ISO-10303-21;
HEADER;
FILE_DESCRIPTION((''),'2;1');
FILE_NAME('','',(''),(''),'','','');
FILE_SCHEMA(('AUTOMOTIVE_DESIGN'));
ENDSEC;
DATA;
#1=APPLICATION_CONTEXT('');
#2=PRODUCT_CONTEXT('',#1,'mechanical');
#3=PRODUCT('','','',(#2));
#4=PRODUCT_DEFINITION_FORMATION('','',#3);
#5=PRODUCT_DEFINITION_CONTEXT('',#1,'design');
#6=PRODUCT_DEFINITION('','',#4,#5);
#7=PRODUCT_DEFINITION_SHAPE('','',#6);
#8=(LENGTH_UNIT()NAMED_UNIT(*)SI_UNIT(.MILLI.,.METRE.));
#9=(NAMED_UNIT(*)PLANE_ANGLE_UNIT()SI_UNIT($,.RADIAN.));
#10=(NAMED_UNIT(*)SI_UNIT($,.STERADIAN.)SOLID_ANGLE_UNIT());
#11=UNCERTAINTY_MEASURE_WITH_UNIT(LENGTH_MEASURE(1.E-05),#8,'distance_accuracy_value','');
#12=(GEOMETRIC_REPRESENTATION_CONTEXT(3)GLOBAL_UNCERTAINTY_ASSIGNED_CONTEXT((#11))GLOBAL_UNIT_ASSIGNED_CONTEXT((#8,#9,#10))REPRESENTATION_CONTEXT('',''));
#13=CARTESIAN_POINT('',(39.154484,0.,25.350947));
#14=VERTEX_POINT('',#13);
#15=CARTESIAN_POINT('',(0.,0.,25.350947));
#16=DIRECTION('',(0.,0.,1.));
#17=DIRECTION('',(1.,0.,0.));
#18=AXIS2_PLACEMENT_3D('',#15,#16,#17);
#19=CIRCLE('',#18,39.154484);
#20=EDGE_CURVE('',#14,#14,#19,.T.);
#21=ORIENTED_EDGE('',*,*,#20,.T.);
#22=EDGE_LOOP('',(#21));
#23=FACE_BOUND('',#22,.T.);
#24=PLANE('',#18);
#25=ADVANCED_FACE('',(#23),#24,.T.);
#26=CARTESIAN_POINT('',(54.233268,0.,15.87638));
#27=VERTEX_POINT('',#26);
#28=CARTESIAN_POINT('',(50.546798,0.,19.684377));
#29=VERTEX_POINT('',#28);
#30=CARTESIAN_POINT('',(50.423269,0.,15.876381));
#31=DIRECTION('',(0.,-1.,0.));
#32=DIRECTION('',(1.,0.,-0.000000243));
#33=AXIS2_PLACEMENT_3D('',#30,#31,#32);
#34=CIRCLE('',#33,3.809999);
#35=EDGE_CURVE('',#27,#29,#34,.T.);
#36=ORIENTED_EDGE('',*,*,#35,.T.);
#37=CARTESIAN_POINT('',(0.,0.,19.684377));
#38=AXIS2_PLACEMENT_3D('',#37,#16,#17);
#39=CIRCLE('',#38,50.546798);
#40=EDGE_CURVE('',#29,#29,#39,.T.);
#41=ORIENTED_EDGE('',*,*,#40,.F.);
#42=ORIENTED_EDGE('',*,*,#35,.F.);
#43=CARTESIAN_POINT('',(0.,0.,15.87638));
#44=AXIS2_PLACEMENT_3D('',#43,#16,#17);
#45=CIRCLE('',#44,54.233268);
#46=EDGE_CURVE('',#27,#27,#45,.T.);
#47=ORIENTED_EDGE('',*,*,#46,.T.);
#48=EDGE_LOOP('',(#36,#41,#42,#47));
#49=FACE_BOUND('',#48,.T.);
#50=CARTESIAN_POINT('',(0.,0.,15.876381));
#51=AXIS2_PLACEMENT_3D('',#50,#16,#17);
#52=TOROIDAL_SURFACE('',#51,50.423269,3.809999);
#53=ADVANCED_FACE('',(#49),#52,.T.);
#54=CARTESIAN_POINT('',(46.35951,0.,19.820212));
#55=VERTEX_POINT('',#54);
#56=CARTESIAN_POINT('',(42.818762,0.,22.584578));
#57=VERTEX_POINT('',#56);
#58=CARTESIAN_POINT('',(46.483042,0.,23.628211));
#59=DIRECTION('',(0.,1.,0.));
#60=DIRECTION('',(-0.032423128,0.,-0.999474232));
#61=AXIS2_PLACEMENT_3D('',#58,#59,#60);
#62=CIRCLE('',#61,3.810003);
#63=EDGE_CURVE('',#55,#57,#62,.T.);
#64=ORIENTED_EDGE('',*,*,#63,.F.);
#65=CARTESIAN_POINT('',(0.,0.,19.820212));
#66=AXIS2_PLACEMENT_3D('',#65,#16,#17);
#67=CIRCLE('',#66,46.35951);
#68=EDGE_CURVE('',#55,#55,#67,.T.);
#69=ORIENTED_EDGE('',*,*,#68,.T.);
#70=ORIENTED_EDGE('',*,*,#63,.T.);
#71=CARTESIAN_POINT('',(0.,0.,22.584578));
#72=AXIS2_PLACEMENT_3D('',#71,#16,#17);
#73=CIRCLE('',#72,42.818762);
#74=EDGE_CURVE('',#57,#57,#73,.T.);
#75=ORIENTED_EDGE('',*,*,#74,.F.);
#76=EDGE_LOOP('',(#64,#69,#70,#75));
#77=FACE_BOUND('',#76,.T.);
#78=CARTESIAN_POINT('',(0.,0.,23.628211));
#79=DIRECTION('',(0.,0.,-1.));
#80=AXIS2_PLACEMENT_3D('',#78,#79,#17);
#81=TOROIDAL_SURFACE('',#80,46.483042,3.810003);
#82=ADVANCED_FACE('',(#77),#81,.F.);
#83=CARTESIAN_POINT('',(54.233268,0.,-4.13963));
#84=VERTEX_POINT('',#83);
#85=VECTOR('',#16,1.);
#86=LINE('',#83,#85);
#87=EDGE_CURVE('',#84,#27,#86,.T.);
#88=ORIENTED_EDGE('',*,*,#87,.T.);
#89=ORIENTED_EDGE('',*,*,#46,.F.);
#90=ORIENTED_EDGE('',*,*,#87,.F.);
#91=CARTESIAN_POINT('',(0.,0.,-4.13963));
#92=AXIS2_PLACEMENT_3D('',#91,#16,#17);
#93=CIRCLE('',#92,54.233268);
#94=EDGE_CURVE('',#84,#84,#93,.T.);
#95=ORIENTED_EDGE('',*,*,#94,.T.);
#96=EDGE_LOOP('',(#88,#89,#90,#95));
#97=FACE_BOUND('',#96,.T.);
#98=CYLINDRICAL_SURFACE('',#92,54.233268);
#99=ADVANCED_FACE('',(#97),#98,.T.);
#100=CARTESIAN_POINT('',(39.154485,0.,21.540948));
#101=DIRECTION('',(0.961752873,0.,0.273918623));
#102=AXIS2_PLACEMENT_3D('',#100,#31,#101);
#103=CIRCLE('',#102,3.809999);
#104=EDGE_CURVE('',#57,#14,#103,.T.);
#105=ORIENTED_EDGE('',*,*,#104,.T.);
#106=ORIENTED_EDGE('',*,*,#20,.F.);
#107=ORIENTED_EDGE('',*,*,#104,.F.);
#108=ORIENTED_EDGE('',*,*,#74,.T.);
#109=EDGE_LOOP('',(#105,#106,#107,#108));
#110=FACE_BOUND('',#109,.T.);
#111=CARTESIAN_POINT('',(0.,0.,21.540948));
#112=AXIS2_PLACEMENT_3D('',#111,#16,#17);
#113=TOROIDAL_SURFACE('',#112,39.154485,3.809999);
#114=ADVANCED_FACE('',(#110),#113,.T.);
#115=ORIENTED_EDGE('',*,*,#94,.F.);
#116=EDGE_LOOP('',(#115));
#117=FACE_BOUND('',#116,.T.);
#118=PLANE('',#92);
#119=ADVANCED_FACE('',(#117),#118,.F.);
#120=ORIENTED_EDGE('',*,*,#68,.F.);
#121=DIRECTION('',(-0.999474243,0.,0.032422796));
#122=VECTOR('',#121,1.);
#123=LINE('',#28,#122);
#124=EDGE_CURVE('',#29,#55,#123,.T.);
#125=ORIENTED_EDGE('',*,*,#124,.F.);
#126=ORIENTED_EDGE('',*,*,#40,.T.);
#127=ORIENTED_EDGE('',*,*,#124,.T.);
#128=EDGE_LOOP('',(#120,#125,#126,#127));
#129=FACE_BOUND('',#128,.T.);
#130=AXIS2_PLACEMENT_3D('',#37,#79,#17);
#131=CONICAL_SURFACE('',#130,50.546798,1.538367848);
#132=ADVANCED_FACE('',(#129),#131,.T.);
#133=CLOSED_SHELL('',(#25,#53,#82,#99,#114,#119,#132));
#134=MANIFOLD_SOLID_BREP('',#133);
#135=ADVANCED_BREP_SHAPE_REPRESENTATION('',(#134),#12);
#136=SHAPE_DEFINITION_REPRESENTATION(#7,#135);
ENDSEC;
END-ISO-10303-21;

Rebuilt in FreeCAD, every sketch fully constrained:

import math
import FreeCAD as App
import Part
import Sketcher

V = App.Vector
Q = App.Units.Quantity

doc = App.newDocument("Part")
body = doc.addObject("PartDesign::Body", "Body")

# Sketch on XZ plane
sketch1 = body.newObject("Sketcher::SketchObject", "Sketch")
sketch1.AttachmentSupport = (doc.getObject("XZ_Plane"), [""])
sketch1.MapMode = "FlatFace"
sketch1.addGeometry([
    Part.LineSegment(V(0, 25.350947, 0), V(0, -4.13963, 0)),  # 0
    Part.LineSegment(V(0, -4.13963, 0), V(54.233268, -4.13963, 0)),  # 1
    Part.LineSegment(V(54.233268, -4.13963, 0), V(54.233268, 15.87638, 0)),  # 2
    Part.ArcOfCircle(Part.Circle(V(50.423269, 15.876381, 0), V(0, 0, 1), 3.809999), math.radians(-0.000014), math.radians(88.14201)),  # 3
    Part.LineSegment(V(50.546798, 19.684377, 0), V(46.35951, 19.820212, 0)),  # 4
    Part.ArcOfCircle(Part.Circle(V(46.483042, 23.628211, 0), V(0, 0, 1), 3.810003), math.radians(-164.102375), math.radians(-91.858034)),  # 5
    Part.ArcOfCircle(Part.Circle(V(39.154485, 21.540948, 0), V(0, 0, 1), 3.809999), math.radians(15.897582), math.radians(90.000014)),  # 6
    Part.LineSegment(V(39.154484, 25.350947, 0), V(0, 25.350947, 0)),  # 7
], False)
sketch1.addConstraint([
    Sketcher.Constraint("Coincident", 0, 2, 1, 1),
    Sketcher.Constraint("Coincident", 1, 2, 2, 1),
    Sketcher.Constraint("Tangent", 2, 2, 3, 1),
    Sketcher.Constraint("Tangent", 3, 2, 4, 1),
    Sketcher.Constraint("Tangent", 4, 2, 5, 2),
    Sketcher.Constraint("Tangent", 5, 1, 6, 1),
    Sketcher.Constraint("Tangent", 6, 2, 7, 1),
    Sketcher.Constraint("Coincident", 7, 2, 0, 1),
    Sketcher.Constraint("Vertical", 0),
    Sketcher.Constraint("Horizontal", 1),
    Sketcher.Constraint("Vertical", 2),
    Sketcher.Constraint("Horizontal", 7),
    Sketcher.Constraint("Equal", 3, 6),
    Sketcher.Constraint("PointOnObject", 0, 2, -2),
    Sketcher.Constraint("Radius", 3, Q("0.15 in")),
    Sketcher.Constraint("Radius", 5, Q("0.1500001 in")),
    Sketcher.Constraint("DistanceX", 1, 1, 1, 2, 54.233268),
    Sketcher.Constraint("DistanceY", 2, 1, 2, 2, 20.01601),
    Sketcher.Constraint("DistanceX", -1, 1, 3, 2, 50.546798),
    Sketcher.Constraint("DistanceY", 3, 2, 5, 1, 2.900201),
    Sketcher.Constraint("Distance", 4, 4.189491),
    Sketcher.Constraint("DistanceY", -1, 1, 3, 3, 15.876381),
])
revolution = body.newObject("PartDesign::Revolution", "Revolution")
revolution.Profile = sketch1
revolution.ReferenceAxis = (sketch1, ["V_Axis"])
revolution.Angle = 360

doc.recompute()
